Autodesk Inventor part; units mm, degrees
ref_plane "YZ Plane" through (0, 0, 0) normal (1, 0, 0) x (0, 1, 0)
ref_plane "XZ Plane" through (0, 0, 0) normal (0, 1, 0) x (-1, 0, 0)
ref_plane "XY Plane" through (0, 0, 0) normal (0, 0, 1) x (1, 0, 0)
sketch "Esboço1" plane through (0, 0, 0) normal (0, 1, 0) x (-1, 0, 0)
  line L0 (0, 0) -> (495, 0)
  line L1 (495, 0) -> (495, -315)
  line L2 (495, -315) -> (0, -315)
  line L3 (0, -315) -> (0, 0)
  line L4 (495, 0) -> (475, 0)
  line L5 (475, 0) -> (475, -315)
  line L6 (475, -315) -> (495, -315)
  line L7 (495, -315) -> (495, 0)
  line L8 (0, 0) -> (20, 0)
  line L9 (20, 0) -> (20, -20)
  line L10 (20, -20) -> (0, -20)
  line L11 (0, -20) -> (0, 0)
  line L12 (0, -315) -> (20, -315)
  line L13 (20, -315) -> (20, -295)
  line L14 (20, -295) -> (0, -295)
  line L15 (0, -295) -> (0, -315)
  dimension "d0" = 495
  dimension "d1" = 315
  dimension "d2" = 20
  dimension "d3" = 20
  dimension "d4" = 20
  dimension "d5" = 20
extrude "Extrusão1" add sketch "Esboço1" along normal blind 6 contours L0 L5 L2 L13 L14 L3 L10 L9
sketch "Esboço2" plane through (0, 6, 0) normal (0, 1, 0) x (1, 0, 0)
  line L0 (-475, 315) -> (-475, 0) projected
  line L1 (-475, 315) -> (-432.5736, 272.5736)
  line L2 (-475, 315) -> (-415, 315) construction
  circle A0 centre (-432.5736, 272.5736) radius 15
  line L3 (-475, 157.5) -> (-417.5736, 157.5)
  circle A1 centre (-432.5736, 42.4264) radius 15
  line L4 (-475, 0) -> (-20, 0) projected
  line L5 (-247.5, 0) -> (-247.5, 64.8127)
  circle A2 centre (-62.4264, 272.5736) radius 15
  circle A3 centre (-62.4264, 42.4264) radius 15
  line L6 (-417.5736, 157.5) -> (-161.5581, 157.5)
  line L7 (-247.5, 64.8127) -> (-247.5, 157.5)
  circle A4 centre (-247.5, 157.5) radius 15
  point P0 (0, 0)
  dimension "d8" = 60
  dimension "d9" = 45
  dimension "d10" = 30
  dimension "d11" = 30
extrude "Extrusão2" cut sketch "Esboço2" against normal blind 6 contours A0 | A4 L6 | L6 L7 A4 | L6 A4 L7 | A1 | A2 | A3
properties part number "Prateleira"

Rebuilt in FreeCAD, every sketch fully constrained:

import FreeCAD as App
import Part
import Sketcher
from FreeCAD import Vector
Q = App.Units.Quantity


def add_polygon(sketch, points):
    """Adds a closed chain of lines whose ends are joined by coincident constraints."""
    first, n = sketch.GeometryCount, len(points)
    for a, b in zip(points, points[1:] + points[:1]):
        sketch.addGeometry(Part.LineSegment(App.Vector(*a, 0), App.Vector(*b, 0)), False)
    for i in range(n):
        sketch.addConstraint(Sketcher.Constraint("Coincident", first + i, 2, first + (i + 1) % n, 1))

doc = App.newDocument("Part")
params = doc.addObject("Spreadsheet::Sheet", "Params")
for row, (alias, value) in enumerate([
    ("sketch1_width", "20 mm"),
    ("sketch1_height", "315 mm"),
    ("sketch1_width2", "455 mm"),
    ("pad1_length", "6 mm"),
    ("sketch2_diameter", "30 mm"),
    ("pocket1_length", "6 mm"),
], start=1):
    params.set(f"A{row}", alias)
    params.set(f"B{row}", "=" + value)
    params.setAlias(f"B{row}", alias)

body = doc.addObject("PartDesign::Body", "Body")

# Sketch on XZ plane
sketch1 = body.newObject("Sketcher::SketchObject", "Sketch")
sketch1.AttachmentSupport = (doc.getObject("XZ_Plane"), [""])
sketch1.MapMode = "FlatFace"
add_polygon(sketch1, [(-475, 0), (-20, 0), (-20, -20), (0, -20), (0, -295), (-20, -295), (-20, -315), (-475, -315)])  # lines 0-7
sketch1.addConstraint([
    Sketcher.Constraint("Horizontal", 0),
    Sketcher.Constraint("Vertical", 1),
    Sketcher.Constraint("Horizontal", 2),
    Sketcher.Constraint("Vertical", 3),
    Sketcher.Constraint("Horizontal", 4),
    Sketcher.Constraint("Vertical", 5),
    Sketcher.Constraint("Horizontal", 6),
    Sketcher.Constraint("Vertical", 7),
    Sketcher.Constraint("PointOnObject", 0, 2, -1),
    Sketcher.Constraint("PointOnObject", 2, 2, -2),
    Sketcher.Constraint("Vertical", 1, 2, 4, 2),
    Sketcher.Constraint("Equal", 4, 1),
    Sketcher.Constraint("Equal", 1, 5),
    Sketcher.Constraint("DistanceX", 2, 1, 2, 2, Q("20 mm")),
    Sketcher.Constraint("DistanceY", 7, 1, 7, 2, Q("315 mm")),
    Sketcher.Constraint("DistanceX", 0, 1, 0, 2, Q("455 mm")),
])
sketch1.setExpression("Constraints[21]", "Params.sketch1_width")
sketch1.setExpression("Constraints[22]", "Params.sketch1_height")
sketch1.setExpression("Constraints[23]", "Params.sketch1_width2")
pad1 = body.newObject("PartDesign::Pad", "Pad")
pad1.Profile = sketch1
pad1.setExpression("Length", "Params.pad1_length")
pad1.Reversed = True

# Sketch on XZ plane
sketch2 = body.newObject("Sketcher::SketchObject", "Sketch001")
sketch2.AttachmentSupport = (doc.getObject("XZ_Plane"), [""])
sketch2.MapMode = "FlatFace"
sketch2.AttachmentOffset = App.Placement(Vector(0, 0, -6), App.Rotation())
sketch2.addGeometry([
    Part.Circle(Vector(-433, -273, 0), Vector(0, 0, 1), 15),  # 0
    Part.Circle(Vector(-248, -158, 0), Vector(0, 0, 1), 15),  # 1
    Part.Circle(Vector(-433, -42, 0), Vector(0, 0, 1), 15),  # 2
    Part.Circle(Vector(-62, -273, 0), Vector(0, 0, 1), 15),  # 3
    Part.Circle(Vector(-62, -42, 0), Vector(0, 0, 1), 15),  # 4
], False)
sketch2.addConstraint([
    Sketcher.Constraint("Equal", 0, 1),
    Sketcher.Constraint("Equal", 1, 2),
    Sketcher.Constraint("Equal", 2, 3),
    Sketcher.Constraint("Equal", 3, 4),
    Sketcher.Constraint("Horizontal", 0, 3, 3, 3),
    Sketcher.Constraint("Horizontal", 2, 3, 4, 3),
    Sketcher.Constraint("Vertical", 0, 3, 2, 3),
    Sketcher.Constraint("Vertical", 3, 3, 4, 3),
    Sketcher.Constraint("Diameter", 0, Q("30 mm")),
    Sketcher.Constraint("DistanceX", 1, 3, -1, 1, Q("247.5 mm")),
    Sketcher.Constraint("DistanceY", 1, 3, -1, 1, Q("157.5 mm")),
    Sketcher.Constraint("DistanceX", 0, 3, -1, 1, Q("432.5736 mm")),
    Sketcher.Constraint("DistanceY", 0, 3, -1, 1, Q("272.5736 mm")),
    Sketcher.Constraint("DistanceY", 2, 3, -1, 1, Q("42.4264 mm")),
    Sketcher.Constraint("DistanceX", 3, 3, -1, 1, Q("62.4264 mm")),
])
sketch2.setExpression("Constraints[8]", "Params.sketch2_diameter")
pocket1 = body.newObject("PartDesign::Pocket", "Pocket")
pocket1.Profile = sketch2
pocket1.setExpression("Length", "Params.pocket1_length")
pocket1.Reversed = True

doc.recompute()
